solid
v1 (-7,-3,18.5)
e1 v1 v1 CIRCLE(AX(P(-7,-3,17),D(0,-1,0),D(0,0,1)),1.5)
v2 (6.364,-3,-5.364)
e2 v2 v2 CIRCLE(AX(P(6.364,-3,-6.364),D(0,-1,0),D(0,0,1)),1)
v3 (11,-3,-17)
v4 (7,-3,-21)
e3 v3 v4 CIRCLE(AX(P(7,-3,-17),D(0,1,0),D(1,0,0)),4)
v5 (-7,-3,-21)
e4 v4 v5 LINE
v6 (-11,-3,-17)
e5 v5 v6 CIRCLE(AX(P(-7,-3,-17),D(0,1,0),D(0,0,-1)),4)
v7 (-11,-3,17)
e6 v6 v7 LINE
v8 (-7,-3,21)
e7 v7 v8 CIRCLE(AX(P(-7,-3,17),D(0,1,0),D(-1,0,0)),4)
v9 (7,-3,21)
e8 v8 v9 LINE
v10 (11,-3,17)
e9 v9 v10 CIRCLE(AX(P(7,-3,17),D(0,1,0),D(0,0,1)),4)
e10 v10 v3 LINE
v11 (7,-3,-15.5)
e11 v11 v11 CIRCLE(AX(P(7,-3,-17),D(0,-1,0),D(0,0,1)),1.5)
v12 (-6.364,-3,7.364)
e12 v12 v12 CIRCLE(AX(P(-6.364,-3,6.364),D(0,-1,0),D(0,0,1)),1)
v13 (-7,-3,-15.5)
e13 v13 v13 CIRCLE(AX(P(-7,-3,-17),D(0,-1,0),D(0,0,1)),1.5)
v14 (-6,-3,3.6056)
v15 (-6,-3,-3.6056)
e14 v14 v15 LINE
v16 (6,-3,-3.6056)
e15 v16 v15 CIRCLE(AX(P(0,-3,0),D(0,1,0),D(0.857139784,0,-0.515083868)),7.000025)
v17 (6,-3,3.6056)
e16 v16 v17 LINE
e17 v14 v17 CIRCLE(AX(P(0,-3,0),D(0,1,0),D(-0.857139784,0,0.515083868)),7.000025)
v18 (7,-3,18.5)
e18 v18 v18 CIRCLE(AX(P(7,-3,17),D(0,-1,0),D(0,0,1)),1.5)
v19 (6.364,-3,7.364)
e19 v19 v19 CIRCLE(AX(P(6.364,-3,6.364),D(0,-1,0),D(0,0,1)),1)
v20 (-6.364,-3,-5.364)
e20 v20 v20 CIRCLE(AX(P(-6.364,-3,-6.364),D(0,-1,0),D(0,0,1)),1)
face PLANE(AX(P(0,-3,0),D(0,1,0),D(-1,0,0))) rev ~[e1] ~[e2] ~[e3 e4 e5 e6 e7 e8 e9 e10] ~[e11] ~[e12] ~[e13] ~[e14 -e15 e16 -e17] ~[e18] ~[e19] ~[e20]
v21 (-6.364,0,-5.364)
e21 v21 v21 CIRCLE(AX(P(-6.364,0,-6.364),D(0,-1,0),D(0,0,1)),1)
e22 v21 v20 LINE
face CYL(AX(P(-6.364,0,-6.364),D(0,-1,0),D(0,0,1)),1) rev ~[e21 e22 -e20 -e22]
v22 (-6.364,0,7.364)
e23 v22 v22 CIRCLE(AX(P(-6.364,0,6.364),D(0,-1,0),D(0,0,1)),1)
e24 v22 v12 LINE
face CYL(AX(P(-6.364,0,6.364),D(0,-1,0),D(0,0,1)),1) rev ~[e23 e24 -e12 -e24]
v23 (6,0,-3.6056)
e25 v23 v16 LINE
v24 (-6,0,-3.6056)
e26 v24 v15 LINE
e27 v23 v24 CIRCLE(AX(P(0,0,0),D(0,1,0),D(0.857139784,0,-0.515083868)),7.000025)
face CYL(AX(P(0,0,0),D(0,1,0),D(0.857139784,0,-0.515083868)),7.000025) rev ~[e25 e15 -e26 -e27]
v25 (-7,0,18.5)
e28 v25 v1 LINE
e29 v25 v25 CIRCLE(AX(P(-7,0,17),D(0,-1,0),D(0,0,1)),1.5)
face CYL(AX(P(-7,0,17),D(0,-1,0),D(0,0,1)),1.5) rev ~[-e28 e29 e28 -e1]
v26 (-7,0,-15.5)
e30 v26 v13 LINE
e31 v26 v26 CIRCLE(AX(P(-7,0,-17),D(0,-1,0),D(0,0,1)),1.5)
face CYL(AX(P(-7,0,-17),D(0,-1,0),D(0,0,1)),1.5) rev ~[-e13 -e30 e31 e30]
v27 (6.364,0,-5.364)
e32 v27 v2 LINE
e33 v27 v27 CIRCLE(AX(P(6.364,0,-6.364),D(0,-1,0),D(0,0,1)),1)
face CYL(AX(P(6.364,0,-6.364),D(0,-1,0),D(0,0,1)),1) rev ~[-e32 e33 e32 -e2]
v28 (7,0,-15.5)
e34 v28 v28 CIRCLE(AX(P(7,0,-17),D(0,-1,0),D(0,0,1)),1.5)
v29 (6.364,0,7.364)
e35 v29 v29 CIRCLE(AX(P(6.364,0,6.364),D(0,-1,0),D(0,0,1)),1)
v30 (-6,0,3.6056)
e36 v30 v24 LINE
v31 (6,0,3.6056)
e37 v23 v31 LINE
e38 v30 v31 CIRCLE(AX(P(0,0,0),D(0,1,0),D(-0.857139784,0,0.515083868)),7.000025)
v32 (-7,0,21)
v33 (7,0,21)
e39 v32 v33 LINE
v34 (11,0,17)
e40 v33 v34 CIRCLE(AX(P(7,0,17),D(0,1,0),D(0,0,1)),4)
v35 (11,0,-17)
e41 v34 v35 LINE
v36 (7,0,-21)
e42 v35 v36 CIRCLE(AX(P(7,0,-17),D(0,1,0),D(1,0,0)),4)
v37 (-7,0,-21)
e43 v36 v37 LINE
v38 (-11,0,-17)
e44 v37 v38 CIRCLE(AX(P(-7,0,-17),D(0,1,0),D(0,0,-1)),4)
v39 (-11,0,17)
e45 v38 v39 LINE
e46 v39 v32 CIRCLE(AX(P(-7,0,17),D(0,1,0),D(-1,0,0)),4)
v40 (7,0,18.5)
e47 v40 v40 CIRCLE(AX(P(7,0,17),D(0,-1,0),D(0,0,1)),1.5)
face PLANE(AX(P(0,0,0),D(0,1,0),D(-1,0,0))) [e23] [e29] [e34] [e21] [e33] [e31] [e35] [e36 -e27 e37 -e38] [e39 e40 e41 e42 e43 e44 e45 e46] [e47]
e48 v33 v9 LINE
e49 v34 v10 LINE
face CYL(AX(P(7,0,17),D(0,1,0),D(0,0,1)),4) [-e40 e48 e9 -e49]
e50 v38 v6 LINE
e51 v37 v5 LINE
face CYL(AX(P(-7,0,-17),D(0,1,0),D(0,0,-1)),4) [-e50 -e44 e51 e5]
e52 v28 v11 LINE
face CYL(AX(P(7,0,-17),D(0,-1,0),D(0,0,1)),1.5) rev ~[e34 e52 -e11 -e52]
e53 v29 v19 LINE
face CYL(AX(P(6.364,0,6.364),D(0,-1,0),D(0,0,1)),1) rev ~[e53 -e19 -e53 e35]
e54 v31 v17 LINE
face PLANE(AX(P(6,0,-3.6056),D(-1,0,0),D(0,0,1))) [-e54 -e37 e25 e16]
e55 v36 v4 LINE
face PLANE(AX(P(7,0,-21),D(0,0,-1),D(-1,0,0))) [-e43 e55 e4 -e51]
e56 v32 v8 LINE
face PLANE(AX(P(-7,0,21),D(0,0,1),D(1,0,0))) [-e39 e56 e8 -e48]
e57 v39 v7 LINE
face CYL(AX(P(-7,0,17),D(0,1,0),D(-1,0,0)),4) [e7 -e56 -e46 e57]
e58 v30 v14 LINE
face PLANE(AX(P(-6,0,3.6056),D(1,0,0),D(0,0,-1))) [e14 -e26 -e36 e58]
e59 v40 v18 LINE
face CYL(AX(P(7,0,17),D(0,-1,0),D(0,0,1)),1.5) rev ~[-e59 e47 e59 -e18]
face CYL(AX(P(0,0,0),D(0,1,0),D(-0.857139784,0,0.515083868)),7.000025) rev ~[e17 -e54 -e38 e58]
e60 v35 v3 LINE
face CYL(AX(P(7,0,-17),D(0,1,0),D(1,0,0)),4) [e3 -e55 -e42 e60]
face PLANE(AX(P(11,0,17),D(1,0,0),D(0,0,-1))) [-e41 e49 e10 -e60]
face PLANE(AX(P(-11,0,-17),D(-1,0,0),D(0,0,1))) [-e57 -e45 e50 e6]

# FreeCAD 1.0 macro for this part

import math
import FreeCAD as App
import Part
import Sketcher

V = App.Vector
Q = App.Units.Quantity

doc = App.newDocument("Part")
body = doc.addObject("PartDesign::Body", "Body")

# Sketch on XZ plane
sketch1 = body.newObject("Sketcher::SketchObject", "Sketch")
sketch1.AttachmentSupport = (doc.getObject("XZ_Plane"), [""])
sketch1.MapMode = "FlatFace"
sketch1.addGeometry([
    Part.ArcOfCircle(Part.Circle(V(-7, 17, 0), V(0, 0, 1), 4), math.radians(90), math.radians(180)),  # 0
    Part.LineSegment(V(-7, 21, 0), V(7, 21, 0)),  # 1
    Part.ArcOfCircle(Part.Circle(V(7, 17, 0), V(0, 0, 1), 4), math.radians(0), math.radians(90)),  # 2
    Part.LineSegment(V(11, 17, 0), V(11, -17, 0)),  # 3
    Part.ArcOfCircle(Part.Circle(V(7, -17, 0), V(0, 0, 1), 4), math.radians(-90), math.radians(0)),  # 4
    Part.LineSegment(V(7, -21, 0), V(-7, -21, 0)),  # 5
    Part.ArcOfCircle(Part.Circle(V(-7, -17, 0), V(0, 0, 1), 4), math.radians(180), math.radians(270)),  # 6
    Part.LineSegment(V(-11, -17, 0), V(-11, 17, 0)),  # 7
    Part.ArcOfCircle(Part.Circle(V(0, 0, 0), V(0, 0, 1), 7), math.radians(31), math.radians(149)),  # 8
    Part.LineSegment(V(-6, 3.6, 0), V(-6, -3.6, 0)),  # 9
    Part.ArcOfCircle(Part.Circle(V(0, 0, 0), V(0, 0, 1), 7), math.radians(-149), math.radians(-31)),  # 10
    Part.LineSegment(V(6, -3.6, 0), V(6, 3.6, 0)),  # 11
], False)
sketch1.addConstraint([
    Sketcher.Constraint("Tangent", 0, 1, 1, 1),
    Sketcher.Constraint("Tangent", 1, 2, 2, 2),
    Sketcher.Constraint("Tangent", 2, 1, 3, 1),
    Sketcher.Constraint("Tangent", 3, 2, 4, 2),
    Sketcher.Constraint("Tangent", 4, 1, 5, 1),
    Sketcher.Constraint("Tangent", 5, 2, 6, 2),
    Sketcher.Constraint("Tangent", 6, 1, 7, 1),
    Sketcher.Constraint("Tangent", 7, 2, 0, 2),
    Sketcher.Constraint("Coincident", 8, 2, 9, 1),
    Sketcher.Constraint("Coincident", 9, 2, 10, 1),
    Sketcher.Constraint("Coincident", 10, 2, 11, 1),
    Sketcher.Constraint("Coincident", 11, 2, 8, 1),
    Sketcher.Constraint("Horizontal", 1),
    Sketcher.Constraint("Vertical", 3),
    Sketcher.Constraint("Horizontal", 5),
    Sketcher.Constraint("Vertical", 7),
    Sketcher.Constraint("Vertical", 9),
    Sketcher.Constraint("Vertical", 11),
    Sketcher.Constraint("Coincident", 8, 3, -1, 1),
    Sketcher.Constraint("Coincident", 10, 3, -1, 1),
    Sketcher.Constraint("Equal", 0, 2),
    Sketcher.Constraint("Equal", 2, 4),
    Sketcher.Constraint("Equal", 4, 6),
    Sketcher.Constraint("Equal", 8, 10),
    Sketcher.Constraint("Symmetric", 0, 3, 4, 3, -1, 1),
    Sketcher.Constraint("Horizontal", 9, 2, 10, 2),
    Sketcher.Constraint("Radius", 0, Q("4 mm")),
    Sketcher.Constraint("Radius", 8, Q("7 mm")),
    Sketcher.Constraint("DistanceX", 0, 3, -1, 1, Q("7 mm")),
    Sketcher.Constraint("DistanceX", 9, 2, 10, 2, Q("12 mm")),
    Sketcher.Constraint("DistanceY", 3, 2, 3, 1, Q("34 mm")),
])
pad1 = body.newObject("PartDesign::Pad", "Pad")
pad1.Profile = sketch1
pad1.Length = 3

# Sketch on XZ plane
sketch2 = body.newObject("Sketcher::SketchObject", "Sketch001")
sketch2.AttachmentSupport = (doc.getObject("XZ_Plane"), [""])
sketch2.MapMode = "FlatFace"
sketch2.addGeometry([
    Part.Circle(V(-7, 17, 0), V(0, 0, 1), 1.5),
    Part.Circle(V(7, 17, 0), V(0, 0, 1), 1.5),
    Part.Circle(V(7, -17, 0), V(0, 0, 1), 1.5),
    Part.Circle(V(-7, -17, 0), V(0, 0, 1), 1.5),
], False)
sketch2.addConstraint([
    Sketcher.Constraint("Equal", 0, 1),
    Sketcher.Constraint("Equal", 1, 2),
    Sketcher.Constraint("Equal", 2, 3),
    Sketcher.Constraint("Symmetric", 0, 3, 2, 3, -1, 1),
    Sketcher.Constraint("Symmetric", 1, 3, 3, 3, -1, 1),
    Sketcher.Constraint("Symmetric", 0, 3, 1, 3, -2),
    Sketcher.Constraint("Diameter", 0, Q("3 mm")),
    Sketcher.Constraint("DistanceX", 0, 3, -1, 1, Q("7 mm")),
    Sketcher.Constraint("DistanceY", -1, 1, 0, 3, Q("17 mm")),
])
doc.recompute()
hole = body.newObject("PartDesign::Hole", "Hole")
hole.Profile = sketch2
hole.ThreadType = "None"
hole.Diameter = 3
hole.DepthType = "ThroughAll"
hole.Reversed = True

# Sketch on XZ plane
sketch3 = body.newObject("Sketcher::SketchObject", "Sketch002")
sketch3.AttachmentSupport = (doc.getObject("XZ_Plane"), [""])
sketch3.MapMode = "FlatFace"
sketch3.addGeometry([
    Part.Circle(V(-6.4, -6.4, 0), V(0, 0, 1), 1),
    Part.Circle(V(6.4, -6.4, 0), V(0, 0, 1), 1),
    Part.Circle(V(6.4, 6.4, 0), V(0, 0, 1), 1),
    Part.Circle(V(-6.4, 6.4, 0), V(0, 0, 1), 1),
], False)
sketch3.addConstraint([
    Sketcher.Constraint("Equal", 0, 1),
    Sketcher.Constraint("Equal", 1, 2),
    Sketcher.Constraint("Equal", 2, 3),
    Sketcher.Constraint("Symmetric", 0, 3, 2, 3, -1, 1),
    Sketcher.Constraint("Symmetric", 1, 3, 3, 3, -1, 1),
    Sketcher.Constraint("Symmetric", 0, 3, 1, 3, -2),
    Sketcher.Constraint("Diameter", 0, Q("2 mm")),
    Sketcher.Constraint("DistanceX", 0, 3, -1, 1, Q("6.364 mm")),
    Sketcher.Constraint("DistanceY", 0, 3, -1, 1, Q("6.364 mm")),
])
doc.recompute()
hole2 = body.newObject("PartDesign::Hole", "Hole001")
hole2.Profile = sketch3
hole2.ThreadType = "None"
hole2.Diameter = 2
hole2.DepthType = "ThroughAll"
hole2.Reversed = True

doc.recompute()
